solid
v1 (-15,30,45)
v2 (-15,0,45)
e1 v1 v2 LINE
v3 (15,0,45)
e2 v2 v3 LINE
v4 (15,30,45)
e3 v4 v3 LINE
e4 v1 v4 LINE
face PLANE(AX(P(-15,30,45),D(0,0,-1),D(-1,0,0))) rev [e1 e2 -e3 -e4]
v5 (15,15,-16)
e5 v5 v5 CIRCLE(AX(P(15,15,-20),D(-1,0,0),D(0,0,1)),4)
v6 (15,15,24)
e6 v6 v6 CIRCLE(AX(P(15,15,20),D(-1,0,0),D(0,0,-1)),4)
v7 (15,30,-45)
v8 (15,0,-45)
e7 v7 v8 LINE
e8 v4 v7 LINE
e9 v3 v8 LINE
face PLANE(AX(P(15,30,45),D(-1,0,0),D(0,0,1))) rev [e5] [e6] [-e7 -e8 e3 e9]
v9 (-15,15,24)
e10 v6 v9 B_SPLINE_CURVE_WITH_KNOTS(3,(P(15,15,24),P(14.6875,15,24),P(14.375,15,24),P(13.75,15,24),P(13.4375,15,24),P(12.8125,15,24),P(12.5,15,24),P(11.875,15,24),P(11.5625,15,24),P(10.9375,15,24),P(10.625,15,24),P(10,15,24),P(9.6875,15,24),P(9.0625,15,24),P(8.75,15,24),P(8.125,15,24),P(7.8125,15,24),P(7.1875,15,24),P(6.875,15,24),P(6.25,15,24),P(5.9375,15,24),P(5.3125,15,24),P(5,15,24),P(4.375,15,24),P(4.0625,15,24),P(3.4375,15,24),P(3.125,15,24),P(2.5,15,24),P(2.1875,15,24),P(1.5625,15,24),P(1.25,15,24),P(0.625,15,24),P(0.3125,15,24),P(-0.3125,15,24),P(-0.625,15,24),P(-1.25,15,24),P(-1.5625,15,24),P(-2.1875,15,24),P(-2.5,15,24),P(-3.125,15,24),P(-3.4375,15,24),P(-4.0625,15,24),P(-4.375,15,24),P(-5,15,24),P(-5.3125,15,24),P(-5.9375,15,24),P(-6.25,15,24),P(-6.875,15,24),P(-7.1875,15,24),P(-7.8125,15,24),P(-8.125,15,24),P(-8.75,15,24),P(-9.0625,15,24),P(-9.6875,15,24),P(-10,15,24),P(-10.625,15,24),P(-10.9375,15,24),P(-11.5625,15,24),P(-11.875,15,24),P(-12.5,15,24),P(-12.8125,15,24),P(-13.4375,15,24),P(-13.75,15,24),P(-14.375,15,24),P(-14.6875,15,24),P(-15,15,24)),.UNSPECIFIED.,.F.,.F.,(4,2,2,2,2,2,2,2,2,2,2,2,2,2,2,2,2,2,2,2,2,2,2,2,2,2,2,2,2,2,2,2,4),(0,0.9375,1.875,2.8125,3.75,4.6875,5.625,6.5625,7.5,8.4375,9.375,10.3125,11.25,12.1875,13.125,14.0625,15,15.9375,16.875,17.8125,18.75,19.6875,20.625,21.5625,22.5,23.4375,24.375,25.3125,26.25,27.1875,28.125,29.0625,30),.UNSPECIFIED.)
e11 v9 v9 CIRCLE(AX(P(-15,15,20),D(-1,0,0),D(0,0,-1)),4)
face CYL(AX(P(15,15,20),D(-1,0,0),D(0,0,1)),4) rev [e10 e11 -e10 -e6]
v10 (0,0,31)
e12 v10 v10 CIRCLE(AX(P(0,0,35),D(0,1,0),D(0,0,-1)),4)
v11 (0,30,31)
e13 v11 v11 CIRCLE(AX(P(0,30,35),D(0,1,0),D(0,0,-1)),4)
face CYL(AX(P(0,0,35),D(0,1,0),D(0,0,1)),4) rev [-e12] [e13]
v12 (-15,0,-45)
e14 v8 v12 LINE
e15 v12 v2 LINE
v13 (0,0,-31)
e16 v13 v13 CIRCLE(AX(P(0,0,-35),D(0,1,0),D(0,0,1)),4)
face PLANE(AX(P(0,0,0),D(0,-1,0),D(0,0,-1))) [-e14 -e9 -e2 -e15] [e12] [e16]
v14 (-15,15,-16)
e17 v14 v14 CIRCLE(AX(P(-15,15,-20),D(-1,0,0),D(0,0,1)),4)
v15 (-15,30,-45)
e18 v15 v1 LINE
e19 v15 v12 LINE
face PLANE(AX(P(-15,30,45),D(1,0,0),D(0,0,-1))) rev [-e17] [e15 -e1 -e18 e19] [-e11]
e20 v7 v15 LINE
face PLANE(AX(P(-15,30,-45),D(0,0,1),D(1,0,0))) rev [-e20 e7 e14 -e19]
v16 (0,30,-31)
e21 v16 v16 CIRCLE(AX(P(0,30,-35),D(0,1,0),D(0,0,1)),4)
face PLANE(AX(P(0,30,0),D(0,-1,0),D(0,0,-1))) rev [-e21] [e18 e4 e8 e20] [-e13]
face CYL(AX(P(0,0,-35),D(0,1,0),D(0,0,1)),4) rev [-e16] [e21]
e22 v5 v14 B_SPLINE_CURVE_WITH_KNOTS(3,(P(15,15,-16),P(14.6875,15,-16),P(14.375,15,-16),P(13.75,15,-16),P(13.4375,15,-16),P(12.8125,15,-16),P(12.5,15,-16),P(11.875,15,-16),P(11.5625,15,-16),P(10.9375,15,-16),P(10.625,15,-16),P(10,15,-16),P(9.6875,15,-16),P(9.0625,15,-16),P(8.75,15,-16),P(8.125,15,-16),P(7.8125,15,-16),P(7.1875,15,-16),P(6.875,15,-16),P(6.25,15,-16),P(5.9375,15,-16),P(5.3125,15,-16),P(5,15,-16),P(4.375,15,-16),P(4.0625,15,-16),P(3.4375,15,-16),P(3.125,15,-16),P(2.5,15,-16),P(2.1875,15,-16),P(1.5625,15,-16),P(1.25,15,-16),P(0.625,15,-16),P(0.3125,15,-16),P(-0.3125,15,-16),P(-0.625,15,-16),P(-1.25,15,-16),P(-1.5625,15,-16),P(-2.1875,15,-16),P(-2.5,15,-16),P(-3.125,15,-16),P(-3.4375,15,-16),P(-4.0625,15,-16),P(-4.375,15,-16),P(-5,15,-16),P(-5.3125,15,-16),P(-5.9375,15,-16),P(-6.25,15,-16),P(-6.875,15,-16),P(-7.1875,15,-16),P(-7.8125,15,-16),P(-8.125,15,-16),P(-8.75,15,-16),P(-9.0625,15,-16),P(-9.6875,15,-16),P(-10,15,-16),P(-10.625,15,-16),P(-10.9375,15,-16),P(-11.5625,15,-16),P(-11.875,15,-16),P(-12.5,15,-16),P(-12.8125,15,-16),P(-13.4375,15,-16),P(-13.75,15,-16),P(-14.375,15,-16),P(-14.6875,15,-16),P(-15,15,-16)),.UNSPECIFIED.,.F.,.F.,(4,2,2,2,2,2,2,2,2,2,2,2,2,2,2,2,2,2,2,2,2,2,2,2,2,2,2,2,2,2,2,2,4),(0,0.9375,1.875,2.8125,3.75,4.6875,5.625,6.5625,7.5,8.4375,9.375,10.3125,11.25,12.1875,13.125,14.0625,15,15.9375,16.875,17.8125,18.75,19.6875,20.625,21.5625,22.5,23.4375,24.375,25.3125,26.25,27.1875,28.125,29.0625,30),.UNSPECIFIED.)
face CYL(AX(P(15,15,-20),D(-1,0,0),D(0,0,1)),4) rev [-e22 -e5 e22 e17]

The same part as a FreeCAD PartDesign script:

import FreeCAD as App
import Part
import Sketcher


def add_polygon(sketch, points):
    """Adds a closed chain of lines whose ends are joined by coincident constraints."""
    first, n = sketch.GeometryCount, len(points)
    for a, b in zip(points, points[1:] + points[:1]):
        sketch.addGeometry(Part.LineSegment(App.Vector(*a, 0), App.Vector(*b, 0)), False)
    for i in range(n):
        sketch.addConstraint(Sketcher.Constraint("Coincident", first + i, 2, first + (i + 1) % n, 1))

doc = App.newDocument("Part")
params = doc.addObject("Spreadsheet::Sheet", "Params")
for row, (alias, value) in enumerate([
    ("sketch1_width", "30 mm"),
    ("sketch1_height", "90 mm"),
    ("pad1_length", "30 mm"),
    ("sketch2_diameter", "8 mm"),
    ("sketch3_diameter", "8 mm"),
], start=1):
    params.set(f"A{row}", alias)
    params.set(f"B{row}", "=" + value)
    params.setAlias(f"B{row}", alias)

body = doc.addObject("PartDesign::Body", "Body")

# Sketch on XZ plane
sketch1 = body.newObject("Sketcher::SketchObject", "Sketch")
sketch1.AttachmentSupport = (doc.getObject("XZ_Plane"), [""])
sketch1.MapMode = "FlatFace"
add_polygon(sketch1, [(-15, -45), (-15, 45), (15, 45), (15, -45)])  # lines 0-3
sketch1.addConstraint(Sketcher.Constraint("Vertical", 0))
sketch1.addConstraint(Sketcher.Constraint("Horizontal", 1))
sketch1.addConstraint(Sketcher.Constraint("Vertical", 2))
sketch1.addConstraint(Sketcher.Constraint("Horizontal", 3))
sketch1.addConstraint(Sketcher.Constraint("Symmetric", 0, 2, 2, 2, -1, 1))
sketch1.addConstraint(Sketcher.Constraint("DistanceX", 1, 1, 1, 2, 30.0))
sketch1.addConstraint(Sketcher.Constraint("DistanceY", 0, 1, 0, 2, 90.0))
sketch1.setExpression("Constraints[9]", "Params.sketch1_width")
sketch1.setExpression("Constraints[10]", "Params.sketch1_height")
pad1 = body.newObject("PartDesign::Pad", "Pad")
pad1.Profile = sketch1
pad1.setExpression("Length", "Params.pad1_length")
pad1.Reversed = True

# Sketch on YZ plane
sketch2 = body.newObject("Sketcher::SketchObject", "Sketch001")
sketch2.AttachmentSupport = (doc.getObject("YZ_Plane"), [""])
sketch2.MapMode = "FlatFace"
sketch2.AttachmentOffset = App.Placement(App.Vector(0, 0, -15), App.Rotation())
sketch2.addGeometry(Part.Circle(App.Vector(15, -20, 0), App.Vector(0, 0, 1), 4), False)
sketch2.addGeometry(Part.Circle(App.Vector(15, 20, 0), App.Vector(0, 0, 1), 4), False)
sketch2.addConstraint(Sketcher.Constraint("Equal", 0, 1))
sketch2.addConstraint(Sketcher.Constraint("Symmetric", 0, 3, 1, 3, -1))
sketch2.addConstraint(Sketcher.Constraint("Diameter", 0, 8.0))
sketch2.addConstraint(Sketcher.Constraint("DistanceX", -1, 1, 0, 3, 15.0))
sketch2.addConstraint(Sketcher.Constraint("DistanceY", 0, 3, -1, 1, 20.0))
sketch2.setExpression("Constraints[2]", "Params.sketch2_diameter")
pocket1 = body.newObject("PartDesign::Pocket", "Pocket")
pocket1.Profile = sketch2
pocket1.Type = "ThroughAll"
pocket1.Reversed = True

# Sketch on XZ plane
sketch3 = body.newObject("Sketcher::SketchObject", "Sketch002")
sketch3.AttachmentSupport = (doc.getObject("XZ_Plane"), [""])
sketch3.MapMode = "FlatFace"
sketch3.AttachmentOffset = App.Placement(App.Vector(0, 0, -30), App.Rotation())
sketch3.addGeometry(Part.Circle(App.Vector(0, -35, 0), App.Vector(0, 0, 1), 4), False)
sketch3.addGeometry(Part.Circle(App.Vector(0, 35, 0), App.Vector(0, 0, 1), 4), False)
sketch3.addConstraint(Sketcher.Constraint("Equal", 0, 1))
sketch3.addConstraint(Sketcher.Constraint("Symmetric", 0, 3, 1, 3, -1, 1))
sketch3.addConstraint(Sketcher.Constraint("PointOnObject", 0, 3, -2))
sketch3.addConstraint(Sketcher.Constraint("Diameter", 0, 8.0))
sketch3.addConstraint(Sketcher.Constraint("DistanceY", 0, 3, -1, 1, 35.0))
sketch3.setExpression("Constraints[3]", "Params.sketch3_diameter")
pocket2 = body.newObject("PartDesign::Pocket", "Pocket001")
pocket2.Profile = sketch3
pocket2.Type = "ThroughAll"
pocket2.Reversed = True

doc.recompute()
